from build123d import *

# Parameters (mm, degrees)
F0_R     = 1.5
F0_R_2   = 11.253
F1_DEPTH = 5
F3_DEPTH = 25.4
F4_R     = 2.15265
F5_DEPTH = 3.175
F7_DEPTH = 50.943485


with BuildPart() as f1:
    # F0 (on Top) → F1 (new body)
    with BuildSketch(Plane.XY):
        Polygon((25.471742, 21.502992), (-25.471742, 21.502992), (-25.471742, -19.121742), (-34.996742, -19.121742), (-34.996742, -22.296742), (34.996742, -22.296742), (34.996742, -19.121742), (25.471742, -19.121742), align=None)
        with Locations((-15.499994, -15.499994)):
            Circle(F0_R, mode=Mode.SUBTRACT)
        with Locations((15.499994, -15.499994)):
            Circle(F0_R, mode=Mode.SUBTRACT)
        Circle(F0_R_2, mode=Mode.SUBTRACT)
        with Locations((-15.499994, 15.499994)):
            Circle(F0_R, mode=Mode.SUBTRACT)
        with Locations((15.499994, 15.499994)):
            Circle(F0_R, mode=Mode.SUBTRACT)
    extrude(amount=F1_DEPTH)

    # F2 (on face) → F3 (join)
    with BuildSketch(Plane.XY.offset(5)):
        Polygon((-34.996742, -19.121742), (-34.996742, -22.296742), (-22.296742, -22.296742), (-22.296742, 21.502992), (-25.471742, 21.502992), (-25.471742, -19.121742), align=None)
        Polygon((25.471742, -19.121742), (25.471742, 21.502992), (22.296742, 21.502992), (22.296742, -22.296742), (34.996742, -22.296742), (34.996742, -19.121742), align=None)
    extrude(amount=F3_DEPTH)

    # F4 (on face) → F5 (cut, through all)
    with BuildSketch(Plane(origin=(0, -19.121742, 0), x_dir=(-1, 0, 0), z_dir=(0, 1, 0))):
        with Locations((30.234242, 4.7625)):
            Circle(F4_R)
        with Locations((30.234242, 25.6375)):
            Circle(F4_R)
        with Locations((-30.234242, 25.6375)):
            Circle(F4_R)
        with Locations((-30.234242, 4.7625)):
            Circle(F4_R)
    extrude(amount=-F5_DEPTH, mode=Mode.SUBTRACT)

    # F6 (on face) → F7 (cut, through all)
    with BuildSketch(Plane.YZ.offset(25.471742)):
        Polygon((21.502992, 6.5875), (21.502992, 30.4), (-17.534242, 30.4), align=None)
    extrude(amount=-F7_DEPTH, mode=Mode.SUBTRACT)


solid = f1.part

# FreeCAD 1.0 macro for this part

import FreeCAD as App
import Part
import Sketcher
Q = App.Units.Quantity


def add_polygon(sketch, points):
    """Adds a closed chain of lines whose ends are joined by coincident constraints."""
    first, n = sketch.GeometryCount, len(points)
    for a, b in zip(points, points[1:] + points[:1]):
        sketch.addGeometry(Part.LineSegment(App.Vector(*a, 0), App.Vector(*b, 0)), False)
    for i in range(n):
        sketch.addConstraint(Sketcher.Constraint("Coincident", first + i, 2, first + (i + 1) % n, 1))

doc = App.newDocument("Part")
params = doc.addObject("Spreadsheet::Sheet", "Params")
for row, (alias, value) in enumerate([
    ("sketch1_width", "0.375 in"),
    ("sketch1_height", "0.125 in"),
    ("pad1_length", "5 mm"),
    ("sketch2_width", "0.5 in"),
    ("sketch2_width2", "0.125 in"),
    ("pad2_length", "1 in"),
    ("sketch4_height", "0.9375 in"),
], start=1):
    params.set(f"A{row}", alias)
    params.set(f"B{row}", "=" + value)
    params.setAlias(f"B{row}", alias)

body = doc.addObject("PartDesign::Body", "Body")

# Sketch on XY plane
sketch1 = body.newObject("Sketcher::SketchObject", "Sketch")
sketch1.AttachmentSupport = (doc.getObject("XY_Plane"), [""])
sketch1.MapMode = "FlatFace"
add_polygon(sketch1, [(25.471742, 21.502992), (-25.471742, 21.502992), (-25.471742, -19.121742), (-34.996742, -19.121742), (-34.996742, -22.296742), (34.996742, -22.296742), (34.996742, -19.121742), (25.471742, -19.121742)])  # lines 0-7
sketch1.addGeometry(Part.Circle(App.Vector(-15.499994, -15.499994, 0), App.Vector(0, 0, 1), 1.5), False)  # 8
sketch1.addGeometry(Part.Circle(App.Vector(15.499994, -15.499994, 0), App.Vector(0, 0, 1), 1.5), False)  # 9
sketch1.addGeometry(Part.Circle(App.Vector(-15.499994, 15.499994, 0), App.Vector(0, 0, 1), 1.5), False)  # 10
sketch1.addGeometry(Part.Circle(App.Vector(0, 0, 0), App.Vector(0, 0, 1), 11.253), False)  # 11
sketch1.addGeometry(Part.Circle(App.Vector(15.499994, 15.499994, 0), App.Vector(0, 0, 1), 1.5), False)  # 12
sketch1.addConstraint([
    Sketcher.Constraint("Horizontal", 0),
    Sketcher.Constraint("Vertical", 1),
    Sketcher.Constraint("Horizontal", 2),
    Sketcher.Constraint("Vertical", 3),
    Sketcher.Constraint("Horizontal", 4),
    Sketcher.Constraint("Vertical", 5),
    Sketcher.Constraint("Horizontal", 6),
    Sketcher.Constraint("Vertical", 7),
    Sketcher.Constraint("Coincident", 11, 3, -1, 1),
    Sketcher.Constraint("Equal", 8, 9),
    Sketcher.Constraint("Equal", 9, 10),
    Sketcher.Constraint("Equal", 10, 12),
    Sketcher.Constraint("Symmetric", 9, 3, 10, 3, -1, 1),
    Sketcher.Constraint("Symmetric", 8, 3, 12, 3, -1, 1),
    Sketcher.Constraint("Symmetric", 8, 3, 9, 3, -2),
    Sketcher.Constraint("Symmetric", 2, 2, 5, 2, -2),
    Sketcher.Constraint("Equal", 2, 6),
    Sketcher.Constraint("Diameter", 8, 3.0),
    Sketcher.Constraint("Diameter", 11, 22.506),
    Sketcher.Constraint("DistanceX", 2, 2, 2, 1, Q("0.375 in")),
    Sketcher.Constraint("DistanceY", 3, 2, 3, 1, Q("0.125 in")),
    Sketcher.Constraint("DistanceX", 0, 2, 0, 1, 50.943484),
    Sketcher.Constraint("DistanceY", 1, 2, 1, 1, 40.624734),
    Sketcher.Constraint("DistanceY", -1, 1, 0, 2, 21.502992),
    Sketcher.Constraint("DistanceY", 1, 2, 8, 3, 3.621748),
    Sketcher.Constraint("DistanceX", 8, 3, -1, 1, 15.499994),
])
sketch1.setExpression("Constraints[27]", "Params.sketch1_width")
sketch1.setExpression("Constraints[28]", "Params.sketch1_height")
pad1 = body.newObject("PartDesign::Pad", "Pad")
pad1.Profile = sketch1
pad1.setExpression("Length", "Params.pad1_length")

# Sketch on XY plane
sketch2 = body.newObject("Sketcher::SketchObject", "Sketch001")
sketch2.AttachmentSupport = (doc.getObject("XY_Plane"), [""])
sketch2.MapMode = "FlatFace"
sketch2.AttachmentOffset = App.Placement(App.Vector(0, 0, 5), App.Rotation())
add_polygon(sketch2, [(-34.996742, -19.121742), (-34.996742, -22.296742), (-22.296742, -22.296742), (-22.296742, 21.502992), (-25.471742, 21.502992), (-25.471742, -19.121742)])  # lines 0-5
add_polygon(sketch2, [(25.471742, -19.121742), (25.471742, 21.502992), (22.296742, 21.502992), (22.296742, -22.296742), (34.996742, -22.296742), (34.996742, -19.121742)])  # lines 6-11
sketch2.addConstraint([
    Sketcher.Constraint("Vertical", 0),
    Sketcher.Constraint("Horizontal", 1),
    Sketcher.Constraint("Vertical", 2),
    Sketcher.Constraint("Horizontal", 3),
    Sketcher.Constraint("Vertical", 4),
    Sketcher.Constraint("Horizontal", 5),
    Sketcher.Constraint("Vertical", 6),
    Sketcher.Constraint("Horizontal", 7),
    Sketcher.Constraint("Vertical", 8),
    Sketcher.Constraint("Horizontal", 9),
    Sketcher.Constraint("Vertical", 10),
    Sketcher.Constraint("Horizontal", 11),
    Sketcher.Constraint("Symmetric", 3, 2, 6, 2, -2),
    Sketcher.Constraint("Symmetric", 1, 2, 8, 2, -2),
    Sketcher.Constraint("Symmetric", 5, 2, 10, 2, -2),
    Sketcher.Constraint("Equal", 7, 0),
    Sketcher.Constraint("DistanceX", 1, 1, 1, 2, Q("0.5 in")),
    Sketcher.Constraint("DistanceX", 3, 2, 3, 1, Q("0.125 in")),
    Sketcher.Constraint("DistanceY", 2, 1, 2, 2, 43.799734),
    Sketcher.Constraint("DistanceX", 0, 2, -1, 1, 34.996742),
    Sketcher.Constraint("DistanceY", 0, 2, -1, 1, 22.296742),
])
sketch2.setExpression("Constraints[28]", "Params.sketch2_width")
sketch2.setExpression("Constraints[29]", "Params.sketch2_width2")
pad2 = body.newObject("PartDesign::Pad", "Pad001")
pad2.Profile = sketch2
pad2.setExpression("Length", "Params.pad2_length")

# Sketch on XZ plane
sketch3 = body.newObject("Sketcher::SketchObject", "Sketch002")
sketch3.AttachmentSupport = (doc.getObject("XZ_Plane"), [""])
sketch3.MapMode = "FlatFace"
sketch3.AttachmentOffset = App.Placement(App.Vector(0, 0, 19.121742), App.Rotation())
sketch3.addGeometry([
    Part.Circle(App.Vector(-30.234242, 4.7625, 0), App.Vector(0, 0, 1), 2.15265),
    Part.Circle(App.Vector(-30.234242, 25.6375, 0), App.Vector(0, 0, 1), 2.15265),
    Part.Circle(App.Vector(30.234242, 25.6375, 0), App.Vector(0, 0, 1), 2.15265),
    Part.Circle(App.Vector(30.234242, 4.7625, 0), App.Vector(0, 0, 1), 2.15265),
], False)
sketch3.addConstraint([
    Sketcher.Constraint("Equal", 0, 1),
    Sketcher.Constraint("Equal", 1, 2),
    Sketcher.Constraint("Equal", 2, 3),
    Sketcher.Constraint("Symmetric", 1, 3, 2, 3, -2),
    Sketcher.Constraint("Symmetric", 0, 3, 3, 3, -2),
    Sketcher.Constraint("Vertical", 0, 3, 1, 3),
    Sketcher.Constraint("Diameter", 0, Q("0.1695 in")),
    Sketcher.Constraint("DistanceY", -1, 1, 0, 3, Q("0.1875 in")),
    Sketcher.Constraint("DistanceY", -1, 1, 1, 3, 25.6375),
    Sketcher.Constraint("DistanceX", 0, 3, -1, 1, 30.234242),
])
pocket1 = body.newObject("PartDesign::Pocket", "Pocket")
pocket1.Profile = sketch3
pocket1.Type = "ThroughAll"
pocket1.Reversed = True

# Sketch on YZ plane
sketch4 = body.newObject("Sketcher::SketchObject", "Sketch003")
sketch4.AttachmentSupport = (doc.getObject("YZ_Plane"), [""])
sketch4.MapMode = "FlatFace"
sketch4.AttachmentOffset = App.Placement(App.Vector(0, 0, 25.471742), App.Rotation())
add_polygon(sketch4, [(21.502992, 6.5875), (21.502992, 30.4), (-17.534242, 30.4)])  # lines 0-2
sketch4.addConstraint([
    Sketcher.Constraint("Vertical", 0),
    Sketcher.Constraint("Horizontal", 1),
    Sketcher.Constraint("DistanceY", 0, 1, 0, 2, Q("0.9375 in")),
    Sketcher.Constraint("DistanceY", -1, 1, 0, 2, 30.4),
    Sketcher.Constraint("DistanceX", 1, 2, 1, 1, 39.037234),
    Sketcher.Constraint("DistanceX", -1, 1, 0, 2, 21.502992),
])
sketch4.setExpression("Constraints[5]", "Params.sketch4_height")
pocket2 = body.newObject("PartDesign::Pocket", "Pocket001")
pocket2.Profile = sketch4
pocket2.Type = "ThroughAll"

doc.recompute()
